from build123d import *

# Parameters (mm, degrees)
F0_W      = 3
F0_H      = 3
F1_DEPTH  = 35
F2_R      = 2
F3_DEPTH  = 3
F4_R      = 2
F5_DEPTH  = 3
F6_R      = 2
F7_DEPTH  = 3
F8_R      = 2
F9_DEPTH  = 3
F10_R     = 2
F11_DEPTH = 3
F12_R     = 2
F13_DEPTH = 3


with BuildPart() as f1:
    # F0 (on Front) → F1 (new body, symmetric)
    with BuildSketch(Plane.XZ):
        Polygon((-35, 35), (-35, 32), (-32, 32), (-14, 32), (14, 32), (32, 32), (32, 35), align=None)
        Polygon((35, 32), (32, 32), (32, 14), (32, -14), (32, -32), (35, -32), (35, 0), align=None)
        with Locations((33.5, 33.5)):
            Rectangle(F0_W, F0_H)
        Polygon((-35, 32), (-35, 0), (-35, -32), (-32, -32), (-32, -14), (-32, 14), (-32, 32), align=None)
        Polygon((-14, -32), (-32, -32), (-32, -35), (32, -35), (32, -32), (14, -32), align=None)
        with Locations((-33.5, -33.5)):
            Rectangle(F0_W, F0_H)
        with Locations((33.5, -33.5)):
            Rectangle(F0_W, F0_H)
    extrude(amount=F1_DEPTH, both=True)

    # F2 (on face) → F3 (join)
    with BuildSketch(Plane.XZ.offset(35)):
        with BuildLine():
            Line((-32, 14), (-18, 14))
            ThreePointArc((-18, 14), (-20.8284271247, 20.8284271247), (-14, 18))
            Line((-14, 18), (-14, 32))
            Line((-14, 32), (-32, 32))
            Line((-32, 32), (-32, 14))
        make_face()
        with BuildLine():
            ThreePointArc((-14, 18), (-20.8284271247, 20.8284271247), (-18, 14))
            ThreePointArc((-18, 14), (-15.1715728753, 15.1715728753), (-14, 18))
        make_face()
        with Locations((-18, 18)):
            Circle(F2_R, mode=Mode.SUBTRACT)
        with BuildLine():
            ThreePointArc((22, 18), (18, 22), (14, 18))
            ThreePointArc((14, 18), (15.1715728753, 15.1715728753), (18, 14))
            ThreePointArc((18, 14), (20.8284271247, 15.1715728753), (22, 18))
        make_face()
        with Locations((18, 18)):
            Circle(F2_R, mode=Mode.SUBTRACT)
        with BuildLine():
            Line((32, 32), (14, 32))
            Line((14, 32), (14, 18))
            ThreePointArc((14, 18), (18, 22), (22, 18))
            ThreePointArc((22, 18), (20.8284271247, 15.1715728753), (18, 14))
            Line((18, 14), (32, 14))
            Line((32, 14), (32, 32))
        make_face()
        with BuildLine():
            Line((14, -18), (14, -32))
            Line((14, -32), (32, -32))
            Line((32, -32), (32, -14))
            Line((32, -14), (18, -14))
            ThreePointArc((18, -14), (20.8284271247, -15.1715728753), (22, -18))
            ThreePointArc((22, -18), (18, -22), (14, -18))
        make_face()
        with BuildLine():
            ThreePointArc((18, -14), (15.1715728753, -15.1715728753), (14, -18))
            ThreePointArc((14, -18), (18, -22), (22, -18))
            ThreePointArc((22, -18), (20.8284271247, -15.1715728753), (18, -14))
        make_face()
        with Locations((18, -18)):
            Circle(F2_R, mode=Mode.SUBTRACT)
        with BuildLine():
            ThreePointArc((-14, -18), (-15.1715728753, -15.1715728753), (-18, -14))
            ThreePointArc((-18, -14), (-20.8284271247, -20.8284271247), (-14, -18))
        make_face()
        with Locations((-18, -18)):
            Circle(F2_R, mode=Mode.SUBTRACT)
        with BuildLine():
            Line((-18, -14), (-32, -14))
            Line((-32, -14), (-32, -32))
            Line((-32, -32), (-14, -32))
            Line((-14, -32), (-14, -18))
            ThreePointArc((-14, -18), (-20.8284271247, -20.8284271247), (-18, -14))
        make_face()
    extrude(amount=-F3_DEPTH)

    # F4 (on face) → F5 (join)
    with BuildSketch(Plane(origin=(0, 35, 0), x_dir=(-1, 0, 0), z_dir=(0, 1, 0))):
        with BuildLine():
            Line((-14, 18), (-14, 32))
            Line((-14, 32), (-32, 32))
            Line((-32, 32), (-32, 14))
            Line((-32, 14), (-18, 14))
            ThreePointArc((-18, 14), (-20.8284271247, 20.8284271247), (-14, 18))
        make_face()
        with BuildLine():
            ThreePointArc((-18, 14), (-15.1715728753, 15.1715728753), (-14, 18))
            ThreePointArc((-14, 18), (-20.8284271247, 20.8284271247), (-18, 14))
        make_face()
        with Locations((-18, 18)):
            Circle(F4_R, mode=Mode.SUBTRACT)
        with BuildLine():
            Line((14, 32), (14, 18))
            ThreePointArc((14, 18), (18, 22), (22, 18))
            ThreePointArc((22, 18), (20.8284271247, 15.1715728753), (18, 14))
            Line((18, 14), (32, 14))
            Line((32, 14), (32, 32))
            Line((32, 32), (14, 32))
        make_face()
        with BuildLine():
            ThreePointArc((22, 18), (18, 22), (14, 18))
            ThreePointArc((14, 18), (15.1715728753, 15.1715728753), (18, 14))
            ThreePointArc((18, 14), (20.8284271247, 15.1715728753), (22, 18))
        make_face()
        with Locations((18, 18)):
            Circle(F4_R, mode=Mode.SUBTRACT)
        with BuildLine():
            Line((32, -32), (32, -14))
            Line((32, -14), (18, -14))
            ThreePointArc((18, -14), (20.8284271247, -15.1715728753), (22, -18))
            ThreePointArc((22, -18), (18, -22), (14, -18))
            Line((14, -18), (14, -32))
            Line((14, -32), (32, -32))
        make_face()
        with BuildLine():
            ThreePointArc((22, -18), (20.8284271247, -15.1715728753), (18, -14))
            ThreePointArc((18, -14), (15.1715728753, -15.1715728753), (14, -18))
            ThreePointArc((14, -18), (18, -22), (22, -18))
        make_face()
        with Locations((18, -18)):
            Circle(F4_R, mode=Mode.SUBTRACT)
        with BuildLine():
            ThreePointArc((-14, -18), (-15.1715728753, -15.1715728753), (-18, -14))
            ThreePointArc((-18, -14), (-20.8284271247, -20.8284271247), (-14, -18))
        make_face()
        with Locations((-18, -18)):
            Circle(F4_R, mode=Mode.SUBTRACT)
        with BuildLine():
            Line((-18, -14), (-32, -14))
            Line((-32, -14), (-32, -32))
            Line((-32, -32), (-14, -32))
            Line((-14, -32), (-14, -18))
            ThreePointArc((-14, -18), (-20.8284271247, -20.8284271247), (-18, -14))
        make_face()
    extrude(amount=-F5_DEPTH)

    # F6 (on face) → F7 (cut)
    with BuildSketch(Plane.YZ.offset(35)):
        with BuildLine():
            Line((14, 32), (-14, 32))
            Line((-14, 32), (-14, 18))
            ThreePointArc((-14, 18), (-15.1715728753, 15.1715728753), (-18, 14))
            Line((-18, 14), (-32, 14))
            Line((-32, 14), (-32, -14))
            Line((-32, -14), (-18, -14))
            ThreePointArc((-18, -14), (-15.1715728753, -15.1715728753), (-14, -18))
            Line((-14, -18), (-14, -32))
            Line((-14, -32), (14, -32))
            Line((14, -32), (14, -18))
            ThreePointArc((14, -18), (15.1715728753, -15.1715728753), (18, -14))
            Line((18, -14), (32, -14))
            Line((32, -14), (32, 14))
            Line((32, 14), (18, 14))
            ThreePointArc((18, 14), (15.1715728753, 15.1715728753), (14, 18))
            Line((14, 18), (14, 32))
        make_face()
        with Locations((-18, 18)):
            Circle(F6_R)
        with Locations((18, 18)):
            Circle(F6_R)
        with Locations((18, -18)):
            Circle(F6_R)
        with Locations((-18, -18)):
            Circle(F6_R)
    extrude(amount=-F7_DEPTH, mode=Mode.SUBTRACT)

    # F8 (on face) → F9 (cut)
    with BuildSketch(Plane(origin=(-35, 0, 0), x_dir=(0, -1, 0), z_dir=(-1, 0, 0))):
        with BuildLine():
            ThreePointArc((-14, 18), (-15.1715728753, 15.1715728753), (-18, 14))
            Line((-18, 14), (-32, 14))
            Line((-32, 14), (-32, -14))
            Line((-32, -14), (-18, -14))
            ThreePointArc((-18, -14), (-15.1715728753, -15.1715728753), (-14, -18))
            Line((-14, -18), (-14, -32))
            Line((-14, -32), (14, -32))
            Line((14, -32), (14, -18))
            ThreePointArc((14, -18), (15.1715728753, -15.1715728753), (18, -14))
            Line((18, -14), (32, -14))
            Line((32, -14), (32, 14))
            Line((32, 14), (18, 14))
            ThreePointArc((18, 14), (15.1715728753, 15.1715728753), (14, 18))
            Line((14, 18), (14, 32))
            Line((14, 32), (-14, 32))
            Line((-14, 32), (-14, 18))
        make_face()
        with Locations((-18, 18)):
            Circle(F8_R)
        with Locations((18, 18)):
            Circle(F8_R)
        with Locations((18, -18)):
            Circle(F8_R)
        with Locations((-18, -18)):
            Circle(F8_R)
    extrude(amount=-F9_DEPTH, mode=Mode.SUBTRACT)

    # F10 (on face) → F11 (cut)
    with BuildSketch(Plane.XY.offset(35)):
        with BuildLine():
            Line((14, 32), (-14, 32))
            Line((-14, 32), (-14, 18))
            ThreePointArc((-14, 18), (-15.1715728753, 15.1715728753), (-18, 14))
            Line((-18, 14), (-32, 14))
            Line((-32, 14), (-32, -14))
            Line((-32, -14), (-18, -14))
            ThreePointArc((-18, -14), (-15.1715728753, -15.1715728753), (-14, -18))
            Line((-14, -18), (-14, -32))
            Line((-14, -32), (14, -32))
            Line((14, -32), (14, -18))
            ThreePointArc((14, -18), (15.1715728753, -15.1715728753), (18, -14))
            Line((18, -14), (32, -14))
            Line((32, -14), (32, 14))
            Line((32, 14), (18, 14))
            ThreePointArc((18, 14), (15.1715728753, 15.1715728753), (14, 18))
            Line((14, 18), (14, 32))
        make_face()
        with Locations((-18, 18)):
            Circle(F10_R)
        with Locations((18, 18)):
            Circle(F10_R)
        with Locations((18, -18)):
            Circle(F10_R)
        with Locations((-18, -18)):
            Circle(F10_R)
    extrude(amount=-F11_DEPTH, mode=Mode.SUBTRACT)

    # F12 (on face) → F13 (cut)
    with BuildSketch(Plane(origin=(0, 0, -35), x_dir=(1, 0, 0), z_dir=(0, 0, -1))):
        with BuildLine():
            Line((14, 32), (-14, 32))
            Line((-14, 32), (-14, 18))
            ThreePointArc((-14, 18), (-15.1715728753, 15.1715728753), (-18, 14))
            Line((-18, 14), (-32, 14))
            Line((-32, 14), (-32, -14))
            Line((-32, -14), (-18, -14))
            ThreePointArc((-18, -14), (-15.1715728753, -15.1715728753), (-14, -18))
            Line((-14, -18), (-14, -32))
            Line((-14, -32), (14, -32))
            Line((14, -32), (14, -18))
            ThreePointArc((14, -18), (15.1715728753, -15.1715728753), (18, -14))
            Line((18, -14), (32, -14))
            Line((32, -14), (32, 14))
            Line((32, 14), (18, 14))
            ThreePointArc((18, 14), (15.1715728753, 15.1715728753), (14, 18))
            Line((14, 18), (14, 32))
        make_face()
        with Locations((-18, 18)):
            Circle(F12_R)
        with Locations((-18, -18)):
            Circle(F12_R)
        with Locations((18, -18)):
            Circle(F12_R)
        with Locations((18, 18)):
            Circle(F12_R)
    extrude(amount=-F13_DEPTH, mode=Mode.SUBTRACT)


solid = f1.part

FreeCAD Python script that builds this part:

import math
import FreeCAD as App
import Part
import Sketcher
from FreeCAD import Vector
Q = App.Units.Quantity


def add_polygon(sketch, points):
    """Adds a closed chain of lines whose ends are joined by coincident constraints."""
    first, n = sketch.GeometryCount, len(points)
    for a, b in zip(points, points[1:] + points[:1]):
        sketch.addGeometry(Part.LineSegment(App.Vector(*a, 0), App.Vector(*b, 0)), False)
    for i in range(n):
        sketch.addConstraint(Sketcher.Constraint("Coincident", first + i, 2, first + (i + 1) % n, 1))

doc = App.newDocument("Part")
body = doc.addObject("PartDesign::Body", "Body")

sketch1 = doc.addObject("Sketcher::SketchObject", "Sketch")
body.addObject(sketch1)
sketch1.AttachmentSupport = (doc.XZ_Plane, [""])
sketch1.MapMode = "FlatFace"
add_polygon(sketch1, [(-35, -35), (35, -35), (35, 35), (-35, 35)])
add_polygon(sketch1, [(32, 32), (32, -32), (-32, -32), (-32, 32)])
sketch1.addConstraint([
    Sketcher.Constraint("Horizontal", 0),
    Sketcher.Constraint("Vertical", 1),
    Sketcher.Constraint("Horizontal", 2),
    Sketcher.Constraint("Vertical", 3),
    Sketcher.Constraint("Vertical", 4),
    Sketcher.Constraint("Horizontal", 5),
    Sketcher.Constraint("Vertical", 6),
    Sketcher.Constraint("Horizontal", 7),
    Sketcher.Constraint("Symmetric", 0, 2, 2, 2, -1, 1),
    Sketcher.Constraint("Symmetric", 4, 2, 6, 2, -1, 1),
    Sketcher.Constraint("Equal", 2, 1),
    Sketcher.Constraint("Equal", 7, 4),
    Sketcher.Constraint("DistanceX", 0, 1, 0, 2, Q("70 mm")),
    Sketcher.Constraint("DistanceX", 5, 2, 5, 1, Q("64 mm")),
])
pad1 = doc.addObject("PartDesign::Pad", "Pad")
body.addObject(pad1)
pad1.Profile = sketch1
pad1.Length = 70
pad1.Midplane = True

sketch2 = doc.addObject("Sketcher::SketchObject", "Sketch001")
body.addObject(sketch2)
sketch2.AttachmentSupport = (doc.XZ_Plane, [""])
sketch2.MapMode = "FlatFace"
sketch2.AttachmentOffset = App.Placement(Vector(0, 0, 35), App.Rotation())
sketch2.addGeometry([
    Part.LineSegment(Vector(-32, 14, 0), Vector(-18, 14, 0)),
    Part.ArcOfCircle(Part.Circle(Vector(-18, 18, 0), Vector(0, 0, 1), 4), math.radians(-90), math.radians(0)),
    Part.LineSegment(Vector(-14, 18, 0), Vector(-14, 32, 0)),
    Part.LineSegment(Vector(-14, 32, 0), Vector(-32, 32, 0)),
    Part.LineSegment(Vector(-32, 32, 0), Vector(-32, 14, 0)),
    Part.Circle(Vector(-18, 18, 0), Vector(0, 0, 1), 2),
    Part.ArcOfCircle(Part.Circle(Vector(18, 18, 0), Vector(0, 0, 1), 4), math.radians(180), math.radians(270)),
    Part.LineSegment(Vector(18, 14, 0), Vector(32, 14, 0)),
    Part.LineSegment(Vector(32, 14, 0), Vector(32, 32, 0)),
    Part.LineSegment(Vector(32, 32, 0), Vector(14, 32, 0)),
    Part.LineSegment(Vector(14, 32, 0), Vector(14, 18, 0)),
    Part.Circle(Vector(18, 18, 0), Vector(0, 0, 1), 2),
    Part.LineSegment(Vector(14, -18, 0), Vector(14, -32, 0)),
    Part.LineSegment(Vector(14, -32, 0), Vector(32, -32, 0)),
    Part.LineSegment(Vector(32, -32, 0), Vector(32, -14, 0)),
    Part.LineSegment(Vector(32, -14, 0), Vector(18, -14, 0)),
    Part.ArcOfCircle(Part.Circle(Vector(18, -18, 0), Vector(0, 0, 1), 4), math.radians(90), math.radians(180)),
    Part.Circle(Vector(18, -18, 0), Vector(0, 0, 1), 2),
    Part.ArcOfCircle(Part.Circle(Vector(-18, -18, 0), Vector(0, 0, 1), 4), math.radians(0), math.radians(90)),
    Part.LineSegment(Vector(-18, -14, 0), Vector(-32, -14, 0)),
    Part.LineSegment(Vector(-32, -14, 0), Vector(-32, -32, 0)),
    Part.LineSegment(Vector(-32, -32, 0), Vector(-14, -32, 0)),
    Part.LineSegment(Vector(-14, -32, 0), Vector(-14, -18, 0)),
    Part.Circle(Vector(-18, -18, 0), Vector(0, 0, 1), 2),
], False)
sketch2.addConstraint([
    Sketcher.Constraint("Tangent", 0, 2, 1, 1),
    Sketcher.Constraint("Tangent", 1, 2, 2, 1),
    Sketcher.Constraint("Coincident", 2, 2, 3, 1),
    Sketcher.Constraint("Coincident", 3, 2, 4, 1),
    Sketcher.Constraint("Coincident", 4, 2, 0, 1),
    Sketcher.Constraint("Tangent", 6, 2, 7, 1),
    Sketcher.Constraint("Coincident", 7, 2, 8, 1),
    Sketcher.Constraint("Coincident", 8, 2, 9, 1),
    Sketcher.Constraint("Coincident", 9, 2, 10, 1),
    Sketcher.Constraint("Tangent", 10, 2, 6, 1),
    Sketcher.Constraint("Coincident", 12, 2, 13, 1),
    Sketcher.Constraint("Coincident", 13, 2, 14, 1),
    Sketcher.Constraint("Coincident", 14, 2, 15, 1),
    Sketcher.Constraint("Tangent", 15, 2, 16, 1),
    Sketcher.Constraint("Tangent", 16, 2, 12, 1),
    Sketcher.Constraint("Tangent", 18, 2, 19, 1),
    Sketcher.Constraint("Coincident", 19, 2, 20, 1),
    Sketcher.Constraint("Coincident", 20, 2, 21, 1),
    Sketcher.Constraint("Coincident", 21, 2, 22, 1),
    Sketcher.Constraint("Tangent", 22, 2, 18, 1),
    Sketcher.Constraint("Horizontal", 0),
    Sketcher.Constraint("Vertical", 2),
    Sketcher.Constraint("Horizontal", 3),
    Sketcher.Constraint("Vertical", 4),
    Sketcher.Constraint("Horizontal", 7),
    Sketcher.Constraint("Vertical", 8),
    Sketcher.Constraint("Horizontal", 9),
    Sketcher.Constraint("Vertical", 10),
    Sketcher.Constraint("Vertical", 12),
    Sketcher.Constraint("Horizontal", 13),
    Sketcher.Constraint("Vertical", 14),
    Sketcher.Constraint("Horizontal", 15),
    Sketcher.Constraint("Horizontal", 19),
    Sketcher.Constraint("Vertical", 20),
    Sketcher.Constraint("Horizontal", 21),
    Sketcher.Constraint("Vertical", 22),
    Sketcher.Constraint("Coincident", 5, 3, 1, 3),
    Sketcher.Constraint("Coincident", 11, 3, 6, 3),
    Sketcher.Constraint("Coincident", 17, 3, 16, 3),
    Sketcher.Constraint("Coincident", 23, 3, 18, 3),
    Sketcher.Constraint("Equal", 1, 6),
    Sketcher.Constraint("Equal", 5, 11),
    Sketcher.Constraint("Equal", 6, 16),
    Sketcher.Constraint("Equal", 11, 17),
    Sketcher.Constraint("Equal", 16, 18),
    Sketcher.Constraint("Equal", 17, 23),
    Sketcher.Constraint("Symmetric", 1, 3, 16, 3, -1, 1),
    Sketcher.Constraint("Symmetric", 6, 3, 18, 3, -1, 1),
    Sketcher.Constraint("Symmetric", 3, 2, 13, 2, -1, 1),
    Sketcher.Constraint("Symmetric", 8, 2, 20, 2, -1, 1),
    Sketcher.Constraint("Symmetric", 1, 3, 6, 3, -2),
    Sketcher.Constraint("Symmetric", 3, 2, 8, 2, -2),
    Sketcher.Constraint("Equal", 19, 2),
    Sketcher.Constraint("Diameter", 5, Q("4 mm")),
    Sketcher.Constraint("Radius", 1, Q("4 mm")),
    Sketcher.Constraint("DistanceX", 0, 1, 0, 2, Q("14 mm")),
    Sketcher.Constraint("DistanceX", 1, 3, -1, 1, Q("18 mm")),
    Sketcher.Constraint("DistanceY", -1, 1, 1, 3, Q("18 mm")),
])
pad2 = doc.addObject("PartDesign::Pad", "Pad001")
body.addObject(pad2)
pad2.Profile = sketch2
pad2.Length = 3
pad2.Reversed = True

sketch3 = doc.addObject("Sketcher::SketchObject", "Sketch002")
body.addObject(sketch3)
sketch3.AttachmentSupport = (doc.XZ_Plane, [""])
sketch3.MapMode = "FlatFace"
sketch3.AttachmentOffset = App.Placement(Vector(0, 0, -35), App.Rotation())
sketch3.addGeometry([
    Part.LineSegment(Vector(14, 18, 0), Vector(14, 32, 0)),
    Part.LineSegment(Vector(14, 32, 0), Vector(32, 32, 0)),
    Part.LineSegment(Vector(32, 32, 0), Vector(32, 14, 0)),
    Part.LineSegment(Vector(32, 14, 0), Vector(18, 14, 0)),
    Part.ArcOfCircle(Part.Circle(Vector(18, 18, 0), Vector(0, 0, 1), 4), math.radians(180), math.radians(270)),
    Part.Circle(Vector(18, 18, 0), Vector(0, 0, 1), 2),
    Part.LineSegment(Vector(-14, 32, 0), Vector(-14, 18, 0)),
    Part.ArcOfCircle(Part.Circle(Vector(-18, 18, 0), Vector(0, 0, 1), 4), math.radians(-90), math.radians(0)),
    Part.LineSegment(Vector(-18, 14, 0), Vector(-32, 14, 0)),
    Part.LineSegment(Vector(-32, 14, 0), Vector(-32, 32, 0)),
    Part.LineSegment(Vector(-32, 32, 0), Vector(-14, 32, 0)),
    Part.Circle(Vector(-18, 18, 0), Vector(0, 0, 1), 2),
    Part.LineSegment(Vector(-32, -32, 0), Vector(-32, -14, 0)),
    Part.LineSegment(Vector(-32, -14, 0), Vector(-18, -14, 0)),
    Part.ArcOfCircle(Part.Circle(Vector(-18, -18, 0), Vector(0, 0, 1), 4), math.radians(0), math.radians(90)),
    Part.LineSegment(Vector(-14, -18, 0), Vector(-14, -32, 0)),
    Part.LineSegment(Vector(-14, -32, 0), Vector(-32, -32, 0)),
    Part.Circle(Vector(-18, -18, 0), Vector(0, 0, 1), 2),
    Part.ArcOfCircle(Part.Circle(Vector(18, -18, 0), Vector(0, 0, 1), 4), math.radians(90), math.radians(180)),
    Part.LineSegment(Vector(18, -14, 0), Vector(32, -14, 0)),
    Part.LineSegment(Vector(32, -14, 0), Vector(32, -32, 0)),
    Part.LineSegment(Vector(32, -32, 0), Vector(14, -32, 0)),
    Part.LineSegment(Vector(14, -32, 0), Vector(14, -18, 0)),
    Part.Circle(Vector(18, -18, 0), Vector(0, 0, 1), 2),
], False)
sketch3.addConstraint([
    Sketcher.Constraint("Coincident", 0, 2, 1, 1),
    Sketcher.Constraint("Coincident", 1, 2, 2, 1),
    Sketcher.Constraint("Coincident", 2, 2, 3, 1),
    Sketcher.Constraint("Tangent", 3, 2, 4, 2),
    Sketcher.Constraint("Tangent", 4, 1, 0, 1),
    Sketcher.Constraint("Tangent", 6, 2, 7, 2),
    Sketcher.Constraint("Tangent", 7, 1, 8, 1),
    Sketcher.Constraint("Coincident", 8, 2, 9, 1),
    Sketcher.Constraint("Coincident", 9, 2, 10, 1),
    Sketcher.Constraint("Coincident", 10, 2, 6, 1),
    Sketcher.Constraint("Coincident", 12, 2, 13, 1),
    Sketcher.Constraint("Tangent", 13, 2, 14, 2),
    Sketcher.Constraint("Tangent", 14, 1, 15, 1),
    Sketcher.Constraint("Coincident", 15, 2, 16, 1),
    Sketcher.Constraint("Coincident", 16, 2, 12, 1),
    Sketcher.Constraint("Tangent", 18, 1, 19, 1),
    Sketcher.Constraint("Coincident", 19, 2, 20, 1),
    Sketcher.Constraint("Coincident", 20, 2, 21, 1),
    Sketcher.Constraint("Coincident", 21, 2, 22, 1),
    Sketcher.Constraint("Tangent", 22, 2, 18, 2),
    Sketcher.Constraint("Vertical", 0),
    Sketcher.Constraint("Horizontal", 1),
    Sketcher.Constraint("Vertical", 2),
    Sketcher.Constraint("Horizontal", 3),
    Sketcher.Constraint("Vertical", 6),
    Sketcher.Constraint("Horizontal", 8),
    Sketcher.Constraint("Vertical", 9),
    Sketcher.Constraint("Horizontal", 10),
    Sketcher.Constraint("Vertical", 12),
    Sketcher.Constraint("Horizontal", 13),
    Sketcher.Constraint("Vertical", 15),
    Sketcher.Constraint("Horizontal", 16),
    Sketcher.Constraint("Horizontal", 19),
    Sketcher.Constraint("Vertical", 20),
    Sketcher.Constraint("Horizontal", 21),
    Sketcher.Constraint("Vertical", 22),
    Sketcher.Constraint("Coincident", 5, 3, 4, 3),
    Sketcher.Constraint("Coincident", 11, 3, 7, 3),
    Sketcher.Constraint("Coincident", 17, 3, 14, 3),
    Sketcher.Constraint("Coincident", 23, 3, 18, 3),
    Sketcher.Constraint("Equal", 4, 7),
    Sketcher.Constraint("Equal", 5, 11),
    Sketcher.Constraint("Equal", 7, 14),
    Sketcher.Constraint("Equal", 11, 17),
    Sketcher.Constraint("Equal", 14, 18),
    Sketcher.Constraint("Equal", 17, 23),
    Sketcher.Constraint("Symmetric", 4, 3, 14, 3, -1, 1),
    Sketcher.Constraint("Symmetric", 7, 3, 18, 3, -1, 1),
    Sketcher.Constraint("Symmetric", 1, 2, 16, 2, -1, 1),
    Sketcher.Constraint("Symmetric", 9, 2, 20, 2, -1, 1),
    Sketcher.Constraint("Symmetric", 4, 3, 7, 3, -2),
    Sketcher.Constraint("Symmetric", 1, 2, 9, 2, -2),
    Sketcher.Constraint("Equal", 19, 0),
    Sketcher.Constraint("Diameter", 5, Q("4 mm")),
    Sketcher.Constraint("Radius", 4, Q("4 mm")),
    Sketcher.Constraint("DistanceX", 1, 1, 1, 2, Q("18 mm")),
    Sketcher.Constraint("DistanceX", -1, 1, 4, 3, Q("18 mm")),
    Sketcher.Constraint("DistanceY", -1, 1, 4, 3, Q("18 mm")),
])
pad3 = doc.addObject("PartDesign::Pad", "Pad002")
body.addObject(pad3)
pad3.Profile = sketch3
pad3.Length = 3

sketch4 = doc.addObject("Sketcher::SketchObject", "Sketch003")
body.addObject(sketch4)
sketch4.AttachmentSupport = (doc.YZ_Plane, [""])
sketch4.MapMode = "FlatFace"
sketch4.AttachmentOffset = App.Placement(Vector(0, 0, 35), App.Rotation())
sketch4.addGeometry([
    Part.LineSegment(Vector(14, 32, 0), Vector(-14, 32, 0)),
    Part.LineSegment(Vector(-14, 32, 0), Vector(-14, 18, 0)),
    Part.ArcOfCircle(Part.Circle(Vector(-18, 18, 0), Vector(0, 0, 1), 4), math.radians(-90), math.radians(0)),
    Part.LineSegment(Vector(-18, 14, 0), Vector(-32, 14, 0)),
    Part.LineSegment(Vector(-32, 14, 0), Vector(-32, -14, 0)),
    Part.LineSegment(Vector(-32, -14, 0), Vector(-18, -14, 0)),
    Part.ArcOfCircle(Part.Circle(Vector(-18, -18, 0), Vector(0, 0, 1), 4), math.radians(0), math.radians(90)),
    Part.LineSegment(Vector(-14, -18, 0), Vector(-14, -32, 0)),
    Part.LineSegment(Vector(-14, -32, 0), Vector(14, -32, 0)),
    Part.LineSegment(Vector(14, -32, 0), Vector(14, -18, 0)),
    Part.ArcOfCircle(Part.Circle(Vector(18, -18, 0), Vector(0, 0, 1), 4), math.radians(90), math.radians(180)),
    Part.LineSegment(Vector(18, -14, 0), Vector(32, -14, 0)),
    Part.LineSegment(Vector(32, -14, 0), Vector(32, 14, 0)),
    Part.LineSegment(Vector(32, 14, 0), Vector(18, 14, 0)),
    Part.ArcOfCircle(Part.Circle(Vector(18, 18, 0), Vector(0, 0, 1), 4), math.radians(180), math.radians(270)),
    Part.LineSegment(Vector(14, 18, 0), Vector(14, 32, 0)),
    Part.Circle(Vector(-18, 18, 0), Vector(0, 0, 1), 2),
    Part.Circle(Vector(18, 18, 0), Vector(0, 0, 1), 2),
    Part.Circle(Vector(18, -18, 0), Vector(0, 0, 1), 2),
    Part.Circle(Vector(-18, -18, 0), Vector(0, 0, 1), 2),
], False)
sketch4.addConstraint([
    Sketcher.Constraint("Coincident", 0, 2, 1, 1),
    Sketcher.Constraint("Tangent", 1, 2, 2, 2),
    Sketcher.Constraint("Tangent", 2, 1, 3, 1),
    Sketcher.Constraint("Coincident", 3, 2, 4, 1),
    Sketcher.Constraint("Coincident", 4, 2, 5, 1),
    Sketcher.Constraint("Tangent", 5, 2, 6, 2),
    Sketcher.Constraint("Tangent", 6, 1, 7, 1),
    Sketcher.Constraint("Coincident", 7, 2, 8, 1),
    Sketcher.Constraint("Coincident", 8, 2, 9, 1),
    Sketcher.Constraint("Tangent", 9, 2, 10, 2),
    Sketcher.Constraint("Tangent", 10, 1, 11, 1),
    Sketcher.Constraint("Coincident", 11, 2, 12, 1),
    Sketcher.Constraint("Coincident", 12, 2, 13, 1),
    Sketcher.Constraint("Tangent", 13, 2, 14, 2),
    Sketcher.Constraint("Tangent", 14, 1, 15, 1),
    Sketcher.Constraint("Coincident", 15, 2, 0, 1),
    Sketcher.Constraint("Horizontal", 0),
    Sketcher.Constraint("Vertical", 1),
    Sketcher.Constraint("Horizontal", 3),
    Sketcher.Constraint("Vertical", 4),
    Sketcher.Constraint("Horizontal", 5),
    Sketcher.Constraint("Vertical", 7),
    Sketcher.Constraint("Horizontal", 8),
    Sketcher.Constraint("Vertical", 9),
    Sketcher.Constraint("Horizontal", 11),
    Sketcher.Constraint("Vertical", 12),
    Sketcher.Constraint("Horizontal", 13),
    Sketcher.Constraint("Vertical", 15),
    Sketcher.Constraint("Coincident", 16, 3, 2, 3),
    Sketcher.Constraint("Coincident", 17, 3, 14, 3),
    Sketcher.Constraint("Coincident", 18, 3, 10, 3),
    Sketcher.Constraint("Coincident", 19, 3, 6, 3),
    Sketcher.Constraint("Equal", 2, 6),
    Sketcher.Constraint("Equal", 6, 10),
    Sketcher.Constraint("Equal", 10, 14),
    Sketcher.Constraint("Equal", 16, 17),
    Sketcher.Constraint("Equal", 17, 18),
    Sketcher.Constraint("Equal", 18, 19),
    Sketcher.Constraint("Symmetric", 2, 3, 10, 3, -1, 1),
    Sketcher.Constraint("Symmetric", 6, 3, 14, 3, -1, 1),
    Sketcher.Constraint("Symmetric", 6, 3, 10, 3, -2),
    Sketcher.Constraint("Equal", 5, 11),
    Sketcher.Constraint("Equal", 13, 1),
    Sketcher.Constraint("Equal", 8, 4),
    Sketcher.Constraint("Equal", 1, 7),
    Sketcher.Constraint("Diameter", 16, Q("4 mm")),
    Sketcher.Constraint("Radius", 2, Q("4 mm")),
    Sketcher.Constraint("DistanceX", 0, 2, 0, 1, Q("28 mm")),
    Sketcher.Constraint("DistanceX", 3, 2, 3, 1, Q("14 mm")),
])
pocket1 = doc.addObject("PartDesign::Pocket", "Pocket")
body.addObject(pocket1)
pocket1.Profile = sketch4
pocket1.Length = 3

sketch5 = doc.addObject("Sketcher::SketchObject", "Sketch004")
body.addObject(sketch5)
sketch5.AttachmentSupport = (doc.YZ_Plane, [""])
sketch5.MapMode = "FlatFace"
sketch5.AttachmentOffset = App.Placement(Vector(0, 0, -35), App.Rotation())
sketch5.addGeometry([
    Part.ArcOfCircle(Part.Circle(Vector(18, 18, 0), Vector(0, 0, 1), 4), math.radians(180), math.radians(270)),
    Part.LineSegment(Vector(18, 14, 0), Vector(32, 14, 0)),
    Part.LineSegment(Vector(32, 14, 0), Vector(32, -14, 0)),
    Part.LineSegment(Vector(32, -14, 0), Vector(18, -14, 0)),
    Part.ArcOfCircle(Part.Circle(Vector(18, -18, 0), Vector(0, 0, 1), 4), math.radians(90), math.radians(180)),
    Part.LineSegment(Vector(14, -18, 0), Vector(14, -32, 0)),
    Part.LineSegment(Vector(14, -32, 0), Vector(-14, -32, 0)),
    Part.LineSegment(Vector(-14, -32, 0), Vector(-14, -18, 0)),
    Part.ArcOfCircle(Part.Circle(Vector(-18, -18, 0), Vector(0, 0, 1), 4), math.radians(0), math.radians(90)),
    Part.LineSegment(Vector(-18, -14, 0), Vector(-32, -14, 0)),
    Part.LineSegment(Vector(-32, -14, 0), Vector(-32, 14, 0)),
    Part.LineSegment(Vector(-32, 14, 0), Vector(-18, 14, 0)),
    Part.ArcOfCircle(Part.Circle(Vector(-18, 18, 0), Vector(0, 0, 1), 4), math.radians(-90), math.radians(0)),
    Part.LineSegment(Vector(-14, 18, 0), Vector(-14, 32, 0)),
    Part.LineSegment(Vector(-14, 32, 0), Vector(14, 32, 0)),
    Part.LineSegment(Vector(14, 32, 0), Vector(14, 18, 0)),
    Part.Circle(Vector(18, 18, 0), Vector(0, 0, 1), 2),
    Part.Circle(Vector(-18, 18, 0), Vector(0, 0, 1), 2),
    Part.Circle(Vector(-18, -18, 0), Vector(0, 0, 1), 2),
    Part.Circle(Vector(18, -18, 0), Vector(0, 0, 1), 2),
], False)
sketch5.addConstraint([
    Sketcher.Constraint("Tangent", 0, 2, 1, 1),
    Sketcher.Constraint("Coincident", 1, 2, 2, 1),
    Sketcher.Constraint("Coincident", 2, 2, 3, 1),
    Sketcher.Constraint("Tangent", 3, 2, 4, 1),
    Sketcher.Constraint("Tangent", 4, 2, 5, 1),
    Sketcher.Constraint("Coincident", 5, 2, 6, 1),
    Sketcher.Constraint("Coincident", 6, 2, 7, 1),
    Sketcher.Constraint("Tangent", 7, 2, 8, 1),
    Sketcher.Constraint("Tangent", 8, 2, 9, 1),
    Sketcher.Constraint("Coincident", 9, 2, 10, 1),
    Sketcher.Constraint("Coincident", 10, 2, 11, 1),
    Sketcher.Constraint("Tangent", 11, 2, 12, 1),
    Sketcher.Constraint("Tangent", 12, 2, 13, 1),
    Sketcher.Constraint("Coincident", 13, 2, 14, 1),
    Sketcher.Constraint("Coincident", 14, 2, 15, 1),
    Sketcher.Constraint("Tangent", 15, 2, 0, 1),
    Sketcher.Constraint("Horizontal", 1),
    Sketcher.Constraint("Vertical", 2),
    Sketcher.Constraint("Horizontal", 3),
    Sketcher.Constraint("Vertical", 5),
    Sketcher.Constraint("Horizontal", 6),
    Sketcher.Constraint("Vertical", 7),
    Sketcher.Constraint("Horizontal", 9),
    Sketcher.Constraint("Vertical", 10),
    Sketcher.Constraint("Horizontal", 11),
    Sketcher.Constraint("Vertical", 13),
    Sketcher.Constraint("Horizontal", 14),
    Sketcher.Constraint("Vertical", 15),
    Sketcher.Constraint("Coincident", 16, 3, 0, 3),
    Sketcher.Constraint("Coincident", 17, 3, 12, 3),
    Sketcher.Constraint("Coincident", 18, 3, 8, 3),
    Sketcher.Constraint("Coincident", 19, 3, 4, 3),
    Sketcher.Constraint("Equal", 0, 4),
    Sketcher.Constraint("Equal", 4, 8),
    Sketcher.Constraint("Equal", 8, 12),
    Sketcher.Constraint("Equal", 16, 17),
    Sketcher.Constraint("Equal", 17, 18),
    Sketcher.Constraint("Equal", 18, 19),
    Sketcher.Constraint("Symmetric", 0, 3, 8, 3, -1, 1),
    Sketcher.Constraint("Symmetric", 4, 3, 12, 3, -1, 1),
    Sketcher.Constraint("Symmetric", 4, 3, 8, 3, -2),
    Sketcher.Constraint("Equal", 3, 9),
    Sketcher.Constraint("Equal", 14, 2),
    Sketcher.Constraint("Equal", 11, 5),
    Sketcher.Constraint("Equal", 7, 13),
    Sketcher.Constraint("Diameter", 16, Q("4 mm")),
    Sketcher.Constraint("Radius", 0, Q("4 mm")),
    Sketcher.Constraint("DistanceX", 1, 1, 1, 2, Q("14 mm")),
    Sketcher.Constraint("DistanceX", 6, 2, 6, 1, Q("28 mm")),
])
pocket2 = doc.addObject("PartDesign::Pocket", "Pocket001")
body.addObject(pocket2)
pocket2.Profile = sketch5
pocket2.Length = 3
pocket2.Reversed = True

sketch6 = doc.addObject("Sketcher::SketchObject", "Sketch005")
body.addObject(sketch6)
sketch6.AttachmentSupport = (doc.XY_Plane, [""])
sketch6.MapMode = "FlatFace"
sketch6.AttachmentOffset = App.Placement(Vector(0, 0, 35), App.Rotation())
sketch6.addGeometry([
    Part.LineSegment(Vector(14, 32, 0), Vector(-14, 32, 0)),
    Part.LineSegment(Vector(-14, 32, 0), Vector(-14, 18, 0)),
    Part.ArcOfCircle(Part.Circle(Vector(-18, 18, 0), Vector(0, 0, 1), 4), math.radians(-90), math.radians(0)),
    Part.LineSegment(Vector(-18, 14, 0), Vector(-32, 14, 0)),
    Part.LineSegment(Vector(-32, 14, 0), Vector(-32, -14, 0)),
    Part.LineSegment(Vector(-32, -14, 0), Vector(-18, -14, 0)),
    Part.ArcOfCircle(Part.Circle(Vector(-18, -18, 0), Vector(0, 0, 1), 4), math.radians(0), math.radians(90)),
    Part.LineSegment(Vector(-14, -18, 0), Vector(-14, -32, 0)),
    Part.LineSegment(Vector(-14, -32, 0), Vector(14, -32, 0)),
    Part.LineSegment(Vector(14, -32, 0), Vector(14, -18, 0)),
    Part.ArcOfCircle(Part.Circle(Vector(18, -18, 0), Vector(0, 0, 1), 4), math.radians(90), math.radians(180)),
    Part.LineSegment(Vector(18, -14, 0), Vector(32, -14, 0)),
    Part.LineSegment(Vector(32, -14, 0), Vector(32, 14, 0)),
    Part.LineSegment(Vector(32, 14, 0), Vector(18, 14, 0)),
    Part.ArcOfCircle(Part.Circle(Vector(18, 18, 0), Vector(0, 0, 1), 4), math.radians(180), math.radians(270)),
    Part.LineSegment(Vector(14, 18, 0), Vector(14, 32, 0)),
    Part.Circle(Vector(-18, 18, 0), Vector(0, 0, 1), 2),
    Part.Circle(Vector(18, 18, 0), Vector(0, 0, 1), 2),
    Part.Circle(Vector(18, -18, 0), Vector(0, 0, 1), 2),
    Part.Circle(Vector(-18, -18, 0), Vector(0, 0, 1), 2),
], False)
sketch6.addConstraint([
    Sketcher.Constraint("Coincident", 0, 2, 1, 1),
    Sketcher.Constraint("Tangent", 1, 2, 2, 2),
    Sketcher.Constraint("Tangent", 2, 1, 3, 1),
    Sketcher.Constraint("Coincident", 3, 2, 4, 1),
    Sketcher.Constraint("Coincident", 4, 2, 5, 1),
    Sketcher.Constraint("Tangent", 5, 2, 6, 2),
    Sketcher.Constraint("Tangent", 6, 1, 7, 1),
    Sketcher.Constraint("Coincident", 7, 2, 8, 1),
    Sketcher.Constraint("Coincident", 8, 2, 9, 1),
    Sketcher.Constraint("Tangent", 9, 2, 10, 2),
    Sketcher.Constraint("Tangent", 10, 1, 11, 1),
    Sketcher.Constraint("Coincident", 11, 2, 12, 1),
    Sketcher.Constraint("Coincident", 12, 2, 13, 1),
    Sketcher.Constraint("Tangent", 13, 2, 14, 2),
    Sketcher.Constraint("Tangent", 14, 1, 15, 1),
    Sketcher.Constraint("Coincident", 15, 2, 0, 1),
    Sketcher.Constraint("Horizontal", 0),
    Sketcher.Constraint("Vertical", 1),
    Sketcher.Constraint("Horizontal", 3),
    Sketcher.Constraint("Vertical", 4),
    Sketcher.Constraint("Horizontal", 5),
    Sketcher.Constraint("Vertical", 7),
    Sketcher.Constraint("Horizontal", 8),
    Sketcher.Constraint("Vertical", 9),
    Sketcher.Constraint("Horizontal", 11),
    Sketcher.Constraint("Vertical", 12),
    Sketcher.Constraint("Horizontal", 13),
    Sketcher.Constraint("Vertical", 15),
    Sketcher.Constraint("Coincident", 16, 3, 2, 3),
    Sketcher.Constraint("Coincident", 17, 3, 14, 3),
    Sketcher.Constraint("Coincident", 18, 3, 10, 3),
    Sketcher.Constraint("Coincident", 19, 3, 6, 3),
    Sketcher.Constraint("Equal", 2, 6),
    Sketcher.Constraint("Equal", 6, 10),
    Sketcher.Constraint("Equal", 10, 14),
    Sketcher.Constraint("Equal", 16, 17),
    Sketcher.Constraint("Equal", 17, 18),
    Sketcher.Constraint("Equal", 18, 19),
    Sketcher.Constraint("Symmetric", 2, 3, 10, 3, -1, 1),
    Sketcher.Constraint("Symmetric", 6, 3, 14, 3, -1, 1),
    Sketcher.Constraint("Symmetric", 6, 3, 10, 3, -2),
    Sketcher.Constraint("Equal", 5, 11),
    Sketcher.Constraint("Equal", 13, 1),
    Sketcher.Constraint("Equal", 8, 4),
    Sketcher.Constraint("Equal", 1, 7),
    Sketcher.Constraint("Diameter", 16, Q("4 mm")),
    Sketcher.Constraint("Radius", 2, Q("4 mm")),
    Sketcher.Constraint("DistanceX", 0, 2, 0, 1, Q("28 mm")),
    Sketcher.Constraint("DistanceX", 3, 2, 3, 1, Q("14 mm")),
])
pocket3 = doc.addObject("PartDesign::Pocket", "Pocket002")
body.addObject(pocket3)
pocket3.Profile = sketch6
pocket3.Length = 3

sketch7 = doc.addObject("Sketcher::SketchObject", "Sketch006")
body.addObject(sketch7)
sketch7.AttachmentSupport = (doc.XY_Plane, [""])
sketch7.MapMode = "FlatFace"
sketch7.AttachmentOffset = App.Placement(Vector(0, 0, -35), App.Rotation())
sketch7.addGeometry([
    Part.LineSegment(Vector(14, -32, 0), Vector(-14, -32, 0)),
    Part.LineSegment(Vector(-14, -32, 0), Vector(-14, -18, 0)),
    Part.ArcOfCircle(Part.Circle(Vector(-18, -18, 0), Vector(0, 0, 1), 4), math.radians(0), math.radians(90)),
    Part.LineSegment(Vector(-18, -14, 0), Vector(-32, -14, 0)),
    Part.LineSegment(Vector(-32, -14, 0), Vector(-32, 14, 0)),
    Part.LineSegment(Vector(-32, 14, 0), Vector(-18, 14, 0)),
    Part.ArcOfCircle(Part.Circle(Vector(-18, 18, 0), Vector(0, 0, 1), 4), math.radians(-90), math.radians(0)),
    Part.LineSegment(Vector(-14, 18, 0), Vector(-14, 32, 0)),
    Part.LineSegment(Vector(-14, 32, 0), Vector(14, 32, 0)),
    Part.LineSegment(Vector(14, 32, 0), Vector(14, 18, 0)),
    Part.ArcOfCircle(Part.Circle(Vector(18, 18, 0), Vector(0, 0, 1), 4), math.radians(180), math.radians(270)),
    Part.LineSegment(Vector(18, 14, 0), Vector(32, 14, 0)),
    Part.LineSegment(Vector(32, 14, 0), Vector(32, -14, 0)),
    Part.LineSegment(Vector(32, -14, 0), Vector(18, -14, 0)),
    Part.ArcOfCircle(Part.Circle(Vector(18, -18, 0), Vector(0, 0, 1), 4), math.radians(90), math.radians(180)),
    Part.LineSegment(Vector(14, -18, 0), Vector(14, -32, 0)),
    Part.Circle(Vector(-18, -18, 0), Vector(0, 0, 1), 2),
    Part.Circle(Vector(-18, 18, 0), Vector(0, 0, 1), 2),
    Part.Circle(Vector(18, 18, 0), Vector(0, 0, 1), 2),
    Part.Circle(Vector(18, -18, 0), Vector(0, 0, 1), 2),
], False)
sketch7.addConstraint([
    Sketcher.Constraint("Coincident", 0, 2, 1, 1),
    Sketcher.Constraint("Tangent", 1, 2, 2, 1),
    Sketcher.Constraint("Tangent", 2, 2, 3, 1),
    Sketcher.Constraint("Coincident", 3, 2, 4, 1),
    Sketcher.Constraint("Coincident", 4, 2, 5, 1),
    Sketcher.Constraint("Tangent", 5, 2, 6, 1),
    Sketcher.Constraint("Tangent", 6, 2, 7, 1),
    Sketcher.Constraint("Coincident", 7, 2, 8, 1),
    Sketcher.Constraint("Coincident", 8, 2, 9, 1),
    Sketcher.Constraint("Tangent", 9, 2, 10, 1),
    Sketcher.Constraint("Tangent", 10, 2, 11, 1),
    Sketcher.Constraint("Coincident", 11, 2, 12, 1),
    Sketcher.Constraint("Coincident", 12, 2, 13, 1),
    Sketcher.Constraint("Tangent", 13, 2, 14, 1),
    Sketcher.Constraint("Tangent", 14, 2, 15, 1),
    Sketcher.Constraint("Coincident", 15, 2, 0, 1),
    Sketcher.Constraint("Horizontal", 0),
    Sketcher.Constraint("Vertical", 1),
    Sketcher.Constraint("Horizontal", 3),
    Sketcher.Constraint("Vertical", 4),
    Sketcher.Constraint("Horizontal", 5),
    Sketcher.Constraint("Vertical", 7),
    Sketcher.Constraint("Horizontal", 8),
    Sketcher.Constraint("Vertical", 9),
    Sketcher.Constraint("Horizontal", 11),
    Sketcher.Constraint("Vertical", 12),
    Sketcher.Constraint("Horizontal", 13),
    Sketcher.Constraint("Vertical", 15),
    Sketcher.Constraint("Coincident", 16, 3, 2, 3),
    Sketcher.Constraint("Coincident", 17, 3, 6, 3),
    Sketcher.Constraint("Coincident", 18, 3, 10, 3),
    Sketcher.Constraint("Coincident", 19, 3, 14, 3),
    Sketcher.Constraint("Equal", 2, 6),
    Sketcher.Constraint("Equal", 6, 10),
    Sketcher.Constraint("Equal", 10, 14),
    Sketcher.Constraint("Equal", 16, 17),
    Sketcher.Constraint("Equal", 17, 18),
    Sketcher.Constraint("Equal", 18, 19),
    Sketcher.Constraint("Symmetric", 2, 3, 10, 3, -1, 1),
    Sketcher.Constraint("Symmetric", 6, 3, 14, 3, -1, 1),
    Sketcher.Constraint("Symmetric", 6, 3, 10, 3, -2),
    Sketcher.Constraint("Equal", 5, 11),
    Sketcher.Constraint("Equal", 13, 1),
    Sketcher.Constraint("Equal", 8, 4),
    Sketcher.Constraint("Equal", 1, 7),
    Sketcher.Constraint("Diameter", 16, Q("4 mm")),
    Sketcher.Constraint("Radius", 2, Q("4 mm")),
    Sketcher.Constraint("DistanceX", 0, 2, 0, 1, Q("28 mm")),
    Sketcher.Constraint("DistanceX", 3, 2, 3, 1, Q("14 mm")),
])
pocket4 = doc.addObject("PartDesign::Pocket", "Pocket003")
body.addObject(pocket4)
pocket4.Profile = sketch7
pocket4.Length = 3
pocket4.Reversed = True

doc.recompute()
